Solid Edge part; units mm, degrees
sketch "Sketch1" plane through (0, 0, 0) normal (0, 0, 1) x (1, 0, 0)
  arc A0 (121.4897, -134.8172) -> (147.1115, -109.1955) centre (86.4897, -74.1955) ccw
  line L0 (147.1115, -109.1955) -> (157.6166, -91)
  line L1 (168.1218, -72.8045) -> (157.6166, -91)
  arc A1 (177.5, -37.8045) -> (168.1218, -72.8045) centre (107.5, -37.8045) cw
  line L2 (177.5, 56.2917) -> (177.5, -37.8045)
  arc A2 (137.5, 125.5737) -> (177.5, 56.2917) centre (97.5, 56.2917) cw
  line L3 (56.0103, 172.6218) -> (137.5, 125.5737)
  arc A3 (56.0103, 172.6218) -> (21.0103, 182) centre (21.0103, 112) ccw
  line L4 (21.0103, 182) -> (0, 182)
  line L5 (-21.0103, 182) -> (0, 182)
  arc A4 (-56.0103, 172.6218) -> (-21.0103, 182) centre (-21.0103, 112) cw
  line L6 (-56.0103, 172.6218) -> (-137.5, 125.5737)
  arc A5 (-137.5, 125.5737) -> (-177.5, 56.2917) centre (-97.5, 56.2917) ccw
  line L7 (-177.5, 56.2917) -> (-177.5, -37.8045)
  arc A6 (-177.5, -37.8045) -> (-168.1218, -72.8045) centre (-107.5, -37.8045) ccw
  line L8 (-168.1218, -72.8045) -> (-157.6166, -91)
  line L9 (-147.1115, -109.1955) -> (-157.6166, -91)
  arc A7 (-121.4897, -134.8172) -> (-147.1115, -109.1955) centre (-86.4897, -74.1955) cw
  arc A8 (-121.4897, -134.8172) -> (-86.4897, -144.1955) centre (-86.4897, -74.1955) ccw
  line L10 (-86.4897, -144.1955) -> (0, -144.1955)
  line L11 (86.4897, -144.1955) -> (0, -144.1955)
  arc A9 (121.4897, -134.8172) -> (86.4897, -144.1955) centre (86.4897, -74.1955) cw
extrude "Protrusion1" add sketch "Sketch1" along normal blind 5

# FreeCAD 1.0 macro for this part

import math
import FreeCAD as App
import Part
import Sketcher

V = App.Vector
Q = App.Units.Quantity

doc = App.newDocument("Part")
body = doc.addObject("PartDesign::Body", "Body")

# Sketch on XY plane
sketch1 = doc.addObject("Sketcher::SketchObject", "Sketch")
body.addObject(sketch1)
sketch1.AttachmentSupport = (doc.XY_Plane, [""])
sketch1.MapMode = "FlatFace"
sketch1.addGeometry([
    Part.ArcOfCircle(Part.Circle(V(86.4897, -74.1955, 0), V(0, 0, 1), 69.999932), math.radians(-90), math.radians(-59.999968)),  # 0
    Part.ArcOfCircle(Part.Circle(V(86.48892, -74.194483, 0), V(0, 0, 1), 70.001203), math.radians(-59.999831), math.radians(-30.000393)),  # 1
    Part.LineSegment(V(147.1115, -109.1955, 0), V(157.6166, -91, 0)),  # 2
    Part.LineSegment(V(157.6166, -91, 0), V(168.1218, -72.8045, 0)),  # 3
    Part.ArcOfCircle(Part.Circle(V(107.5, -37.8045, 0), V(0, 0, 1), 70), math.radians(-29.999991), math.radians(0)),  # 4
    Part.LineSegment(V(177.5, -37.8045, 0), V(177.5, 56.2917, 0)),  # 5
    Part.ArcOfCircle(Part.Circle(V(97.5, 56.2917, 0), V(0, 0, 1), 79.999972), math.radians(0), math.radians(59.999988)),  # 6
    Part.LineSegment(V(137.5, 125.5737, 0), V(56.0103, 172.6218, 0)),  # 7
    Part.ArcOfCircle(Part.Circle(V(21.0103, 112, 0), V(0, 0, 1), 70.000019), math.radians(60.000009), math.radians(90)),  # 8
    Part.LineSegment(V(21.0103, 182, 0), V(-21.0103, 182, 0)),  # 9
    Part.ArcOfCircle(Part.Circle(V(-21.0103, 112, 0), V(0, 0, 1), 70.000019), math.radians(90), math.radians(119.999991)),  # 10
    Part.LineSegment(V(-56.0103, 172.6218, 0), V(-137.5, 125.5737, 0)),  # 11
    Part.ArcOfCircle(Part.Circle(V(-97.5, 56.2917, 0), V(0, 0, 1), 79.999972), math.radians(120.000012), math.radians(180)),  # 12
    Part.LineSegment(V(-177.5, 56.2917, 0), V(-177.5, -37.8045, 0)),  # 13
    Part.ArcOfCircle(Part.Circle(V(-107.5, -37.8045, 0), V(0, 0, 1), 70), math.radians(180), math.radians(209.999991)),  # 14
    Part.LineSegment(V(-168.1218, -72.8045, 0), V(-157.6166, -91, 0)),  # 15
    Part.LineSegment(V(-157.6166, -91, 0), V(-147.1115, -109.1955, 0)),  # 16
    Part.ArcOfCircle(Part.Circle(V(-86.48892, -74.194483, 0), V(0, 0, 1), 70.001203), math.radians(-149.999607), math.radians(-120.000169)),  # 17
    Part.ArcOfCircle(Part.Circle(V(-86.4897, -74.1955, 0), V(0, 0, 1), 69.999932), math.radians(-120.000032), math.radians(-90)),  # 18
    Part.LineSegment(V(-86.4897, -144.1955, 0), V(86.4897, -144.1955, 0)),  # 19
], False)
sketch1.addConstraint([
    Sketcher.Constraint("Coincident", 0, 2, 1, 1),
    Sketcher.Constraint("Coincident", 1, 2, 2, 1),
    Sketcher.Constraint("Coincident", 2, 2, 3, 1),
    Sketcher.Constraint("Coincident", 3, 2, 4, 1),
    Sketcher.Constraint("Coincident", 4, 2, 5, 1),
    Sketcher.Constraint("Coincident", 5, 2, 6, 1),
    Sketcher.Constraint("Coincident", 6, 2, 7, 1),
    Sketcher.Constraint("Coincident", 7, 2, 8, 1),
    Sketcher.Constraint("Coincident", 8, 2, 9, 1),
    Sketcher.Constraint("Coincident", 9, 2, 10, 1),
    Sketcher.Constraint("Coincident", 10, 2, 11, 1),
    Sketcher.Constraint("Coincident", 11, 2, 12, 1),
    Sketcher.Constraint("Coincident", 12, 2, 13, 1),
    Sketcher.Constraint("Coincident", 13, 2, 14, 1),
    Sketcher.Constraint("Coincident", 14, 2, 15, 1),
    Sketcher.Constraint("Coincident", 15, 2, 16, 1),
    Sketcher.Constraint("Coincident", 16, 2, 17, 1),
    Sketcher.Constraint("Coincident", 17, 2, 18, 1),
    Sketcher.Constraint("Coincident", 18, 2, 19, 1),
    Sketcher.Constraint("Coincident", 19, 2, 0, 1),
    Sketcher.Constraint("Vertical", 5),
    Sketcher.Constraint("Horizontal", 9),
    Sketcher.Constraint("Vertical", 13),
    Sketcher.Constraint("Horizontal", 19),
    Sketcher.Constraint("Radius", 0, Q("70 mm")),
    Sketcher.Constraint("Radius", 4, Q("70 mm")),
    Sketcher.Constraint("Radius", 6, Q("80 mm")),
    Sketcher.Constraint("Radius", 8, Q("70 mm")),
    Sketcher.Constraint("Radius", 10, Q("70 mm")),
    Sketcher.Constraint("Radius", 12, Q("80 mm")),
    Sketcher.Constraint("Radius", 14, Q("70 mm")),
    Sketcher.Constraint("Radius", 18, Q("70 mm")),
    Sketcher.Constraint("DistanceY", -1, 1, 8, 3, Q("112 mm")),
    Sketcher.Constraint("DistanceY", 2, 2, -1, 1, Q("91 mm")),
    Sketcher.Constraint("DistanceY", 15, 2, -1, 1, Q("91 mm")),
    Sketcher.Constraint("DistanceX", 12, 3, 6, 3, Q("195 mm")),
    Sketcher.Constraint("DistanceX", 0, 3, 0, 2, Q("35 mm")),
    Sketcher.Constraint("DistanceY", 1, 2, 0, 3, Q("35 mm")),
    Sketcher.Constraint("DistanceY", 3, 2, 4, 3, Q("35 mm")),
    Sketcher.Constraint("DistanceY", 3, 2, 4, 2, Q("35 mm")),
    Sketcher.Constraint("DistanceX", 6, 3, 6, 2, Q("40 mm")),
    Sketcher.Constraint("DistanceX", 8, 3, 7, 2, Q("35 mm")),
    Sketcher.Constraint("DistanceX", 8, 2, 7, 2, Q("35 mm")),
    Sketcher.Constraint("DistanceX", 10, 2, 9, 2, Q("35 mm")),
    Sketcher.Constraint("DistanceX", 10, 2, 10, 3, Q("35 mm")),
    Sketcher.Constraint("DistanceX", 11, 2, 12, 3, Q("40 mm")),
    Sketcher.Constraint("DistanceY", 14, 2, 13, 2, Q("35 mm")),
    Sketcher.Constraint("DistanceY", 14, 2, 14, 3, Q("35 mm")),
    Sketcher.Constraint("DistanceY", 16, 2, 18, 3, Q("35 mm")),
    Sketcher.Constraint("DistanceX", 17, 2, 18, 3, Q("35 mm")),
    Sketcher.Constraint("DistanceX", 17, 2, 18, 2, Q("35 mm")),
    Sketcher.Constraint("DistanceX", 19, 2, 0, 2, Q("35 mm")),
    Sketcher.Constraint("DistanceX", -1, 1, 4, 3, Q("107.5 mm")),
    Sketcher.Constraint("Radius", 1, Q("70.0012 mm")),
    Sketcher.Constraint("Radius", 17, Q("70.0012 mm")),
    Sketcher.Constraint("DistanceX", 10, 3, 0, 3, Q("107.5 mm")),
    Sketcher.Constraint("DistanceY", 1, 3, 4, 3, Q("36.39 mm")),
    Sketcher.Constraint("DistanceY", 1, 3, 14, 3, Q("36.39 mm")),
    Sketcher.Constraint("DistanceY", 17, 3, 14, 3, Q("36.39 mm")),
    Sketcher.Constraint("DistanceY", 6, 3, 7, 2, Q("116.33 mm")),
    Sketcher.Constraint("DistanceY", 5, 2, 7, 2, Q("116.33 mm")),
    Sketcher.Constraint("DistanceX", 9, 2, 9, 1, Q("42.0206 mm")),
    Sketcher.Constraint("DistanceX", 19, 1, 19, 2, Q("172.9794 mm")),
    Sketcher.Constraint("DistanceY", 5, 1, 5, 2, Q("94.0962 mm")),
    Sketcher.Constraint("DistanceY", 13, 2, 13, 1, Q("94.0962 mm")),
    Sketcher.Constraint("DistanceX", -1, 1, 1, 3, Q("86.489 mm")),
    Sketcher.Constraint("DistanceX", 17, 3, -1, 1, Q("86.489 mm")),
    Sketcher.Constraint("DistanceX", 1, 2, 2, 2, Q("10.505 mm")),
    Sketcher.Constraint("DistanceY", 11, 2, 10, 2, Q("47.048 mm")),
    Sketcher.Constraint("DistanceX", 15, 2, 18, 3, Q("71.127 mm")),
])
pad1 = doc.addObject("PartDesign::Pad", "Pad")
body.addObject(pad1)
pad1.Profile = sketch1
pad1.Length = 5

doc.recompute()
